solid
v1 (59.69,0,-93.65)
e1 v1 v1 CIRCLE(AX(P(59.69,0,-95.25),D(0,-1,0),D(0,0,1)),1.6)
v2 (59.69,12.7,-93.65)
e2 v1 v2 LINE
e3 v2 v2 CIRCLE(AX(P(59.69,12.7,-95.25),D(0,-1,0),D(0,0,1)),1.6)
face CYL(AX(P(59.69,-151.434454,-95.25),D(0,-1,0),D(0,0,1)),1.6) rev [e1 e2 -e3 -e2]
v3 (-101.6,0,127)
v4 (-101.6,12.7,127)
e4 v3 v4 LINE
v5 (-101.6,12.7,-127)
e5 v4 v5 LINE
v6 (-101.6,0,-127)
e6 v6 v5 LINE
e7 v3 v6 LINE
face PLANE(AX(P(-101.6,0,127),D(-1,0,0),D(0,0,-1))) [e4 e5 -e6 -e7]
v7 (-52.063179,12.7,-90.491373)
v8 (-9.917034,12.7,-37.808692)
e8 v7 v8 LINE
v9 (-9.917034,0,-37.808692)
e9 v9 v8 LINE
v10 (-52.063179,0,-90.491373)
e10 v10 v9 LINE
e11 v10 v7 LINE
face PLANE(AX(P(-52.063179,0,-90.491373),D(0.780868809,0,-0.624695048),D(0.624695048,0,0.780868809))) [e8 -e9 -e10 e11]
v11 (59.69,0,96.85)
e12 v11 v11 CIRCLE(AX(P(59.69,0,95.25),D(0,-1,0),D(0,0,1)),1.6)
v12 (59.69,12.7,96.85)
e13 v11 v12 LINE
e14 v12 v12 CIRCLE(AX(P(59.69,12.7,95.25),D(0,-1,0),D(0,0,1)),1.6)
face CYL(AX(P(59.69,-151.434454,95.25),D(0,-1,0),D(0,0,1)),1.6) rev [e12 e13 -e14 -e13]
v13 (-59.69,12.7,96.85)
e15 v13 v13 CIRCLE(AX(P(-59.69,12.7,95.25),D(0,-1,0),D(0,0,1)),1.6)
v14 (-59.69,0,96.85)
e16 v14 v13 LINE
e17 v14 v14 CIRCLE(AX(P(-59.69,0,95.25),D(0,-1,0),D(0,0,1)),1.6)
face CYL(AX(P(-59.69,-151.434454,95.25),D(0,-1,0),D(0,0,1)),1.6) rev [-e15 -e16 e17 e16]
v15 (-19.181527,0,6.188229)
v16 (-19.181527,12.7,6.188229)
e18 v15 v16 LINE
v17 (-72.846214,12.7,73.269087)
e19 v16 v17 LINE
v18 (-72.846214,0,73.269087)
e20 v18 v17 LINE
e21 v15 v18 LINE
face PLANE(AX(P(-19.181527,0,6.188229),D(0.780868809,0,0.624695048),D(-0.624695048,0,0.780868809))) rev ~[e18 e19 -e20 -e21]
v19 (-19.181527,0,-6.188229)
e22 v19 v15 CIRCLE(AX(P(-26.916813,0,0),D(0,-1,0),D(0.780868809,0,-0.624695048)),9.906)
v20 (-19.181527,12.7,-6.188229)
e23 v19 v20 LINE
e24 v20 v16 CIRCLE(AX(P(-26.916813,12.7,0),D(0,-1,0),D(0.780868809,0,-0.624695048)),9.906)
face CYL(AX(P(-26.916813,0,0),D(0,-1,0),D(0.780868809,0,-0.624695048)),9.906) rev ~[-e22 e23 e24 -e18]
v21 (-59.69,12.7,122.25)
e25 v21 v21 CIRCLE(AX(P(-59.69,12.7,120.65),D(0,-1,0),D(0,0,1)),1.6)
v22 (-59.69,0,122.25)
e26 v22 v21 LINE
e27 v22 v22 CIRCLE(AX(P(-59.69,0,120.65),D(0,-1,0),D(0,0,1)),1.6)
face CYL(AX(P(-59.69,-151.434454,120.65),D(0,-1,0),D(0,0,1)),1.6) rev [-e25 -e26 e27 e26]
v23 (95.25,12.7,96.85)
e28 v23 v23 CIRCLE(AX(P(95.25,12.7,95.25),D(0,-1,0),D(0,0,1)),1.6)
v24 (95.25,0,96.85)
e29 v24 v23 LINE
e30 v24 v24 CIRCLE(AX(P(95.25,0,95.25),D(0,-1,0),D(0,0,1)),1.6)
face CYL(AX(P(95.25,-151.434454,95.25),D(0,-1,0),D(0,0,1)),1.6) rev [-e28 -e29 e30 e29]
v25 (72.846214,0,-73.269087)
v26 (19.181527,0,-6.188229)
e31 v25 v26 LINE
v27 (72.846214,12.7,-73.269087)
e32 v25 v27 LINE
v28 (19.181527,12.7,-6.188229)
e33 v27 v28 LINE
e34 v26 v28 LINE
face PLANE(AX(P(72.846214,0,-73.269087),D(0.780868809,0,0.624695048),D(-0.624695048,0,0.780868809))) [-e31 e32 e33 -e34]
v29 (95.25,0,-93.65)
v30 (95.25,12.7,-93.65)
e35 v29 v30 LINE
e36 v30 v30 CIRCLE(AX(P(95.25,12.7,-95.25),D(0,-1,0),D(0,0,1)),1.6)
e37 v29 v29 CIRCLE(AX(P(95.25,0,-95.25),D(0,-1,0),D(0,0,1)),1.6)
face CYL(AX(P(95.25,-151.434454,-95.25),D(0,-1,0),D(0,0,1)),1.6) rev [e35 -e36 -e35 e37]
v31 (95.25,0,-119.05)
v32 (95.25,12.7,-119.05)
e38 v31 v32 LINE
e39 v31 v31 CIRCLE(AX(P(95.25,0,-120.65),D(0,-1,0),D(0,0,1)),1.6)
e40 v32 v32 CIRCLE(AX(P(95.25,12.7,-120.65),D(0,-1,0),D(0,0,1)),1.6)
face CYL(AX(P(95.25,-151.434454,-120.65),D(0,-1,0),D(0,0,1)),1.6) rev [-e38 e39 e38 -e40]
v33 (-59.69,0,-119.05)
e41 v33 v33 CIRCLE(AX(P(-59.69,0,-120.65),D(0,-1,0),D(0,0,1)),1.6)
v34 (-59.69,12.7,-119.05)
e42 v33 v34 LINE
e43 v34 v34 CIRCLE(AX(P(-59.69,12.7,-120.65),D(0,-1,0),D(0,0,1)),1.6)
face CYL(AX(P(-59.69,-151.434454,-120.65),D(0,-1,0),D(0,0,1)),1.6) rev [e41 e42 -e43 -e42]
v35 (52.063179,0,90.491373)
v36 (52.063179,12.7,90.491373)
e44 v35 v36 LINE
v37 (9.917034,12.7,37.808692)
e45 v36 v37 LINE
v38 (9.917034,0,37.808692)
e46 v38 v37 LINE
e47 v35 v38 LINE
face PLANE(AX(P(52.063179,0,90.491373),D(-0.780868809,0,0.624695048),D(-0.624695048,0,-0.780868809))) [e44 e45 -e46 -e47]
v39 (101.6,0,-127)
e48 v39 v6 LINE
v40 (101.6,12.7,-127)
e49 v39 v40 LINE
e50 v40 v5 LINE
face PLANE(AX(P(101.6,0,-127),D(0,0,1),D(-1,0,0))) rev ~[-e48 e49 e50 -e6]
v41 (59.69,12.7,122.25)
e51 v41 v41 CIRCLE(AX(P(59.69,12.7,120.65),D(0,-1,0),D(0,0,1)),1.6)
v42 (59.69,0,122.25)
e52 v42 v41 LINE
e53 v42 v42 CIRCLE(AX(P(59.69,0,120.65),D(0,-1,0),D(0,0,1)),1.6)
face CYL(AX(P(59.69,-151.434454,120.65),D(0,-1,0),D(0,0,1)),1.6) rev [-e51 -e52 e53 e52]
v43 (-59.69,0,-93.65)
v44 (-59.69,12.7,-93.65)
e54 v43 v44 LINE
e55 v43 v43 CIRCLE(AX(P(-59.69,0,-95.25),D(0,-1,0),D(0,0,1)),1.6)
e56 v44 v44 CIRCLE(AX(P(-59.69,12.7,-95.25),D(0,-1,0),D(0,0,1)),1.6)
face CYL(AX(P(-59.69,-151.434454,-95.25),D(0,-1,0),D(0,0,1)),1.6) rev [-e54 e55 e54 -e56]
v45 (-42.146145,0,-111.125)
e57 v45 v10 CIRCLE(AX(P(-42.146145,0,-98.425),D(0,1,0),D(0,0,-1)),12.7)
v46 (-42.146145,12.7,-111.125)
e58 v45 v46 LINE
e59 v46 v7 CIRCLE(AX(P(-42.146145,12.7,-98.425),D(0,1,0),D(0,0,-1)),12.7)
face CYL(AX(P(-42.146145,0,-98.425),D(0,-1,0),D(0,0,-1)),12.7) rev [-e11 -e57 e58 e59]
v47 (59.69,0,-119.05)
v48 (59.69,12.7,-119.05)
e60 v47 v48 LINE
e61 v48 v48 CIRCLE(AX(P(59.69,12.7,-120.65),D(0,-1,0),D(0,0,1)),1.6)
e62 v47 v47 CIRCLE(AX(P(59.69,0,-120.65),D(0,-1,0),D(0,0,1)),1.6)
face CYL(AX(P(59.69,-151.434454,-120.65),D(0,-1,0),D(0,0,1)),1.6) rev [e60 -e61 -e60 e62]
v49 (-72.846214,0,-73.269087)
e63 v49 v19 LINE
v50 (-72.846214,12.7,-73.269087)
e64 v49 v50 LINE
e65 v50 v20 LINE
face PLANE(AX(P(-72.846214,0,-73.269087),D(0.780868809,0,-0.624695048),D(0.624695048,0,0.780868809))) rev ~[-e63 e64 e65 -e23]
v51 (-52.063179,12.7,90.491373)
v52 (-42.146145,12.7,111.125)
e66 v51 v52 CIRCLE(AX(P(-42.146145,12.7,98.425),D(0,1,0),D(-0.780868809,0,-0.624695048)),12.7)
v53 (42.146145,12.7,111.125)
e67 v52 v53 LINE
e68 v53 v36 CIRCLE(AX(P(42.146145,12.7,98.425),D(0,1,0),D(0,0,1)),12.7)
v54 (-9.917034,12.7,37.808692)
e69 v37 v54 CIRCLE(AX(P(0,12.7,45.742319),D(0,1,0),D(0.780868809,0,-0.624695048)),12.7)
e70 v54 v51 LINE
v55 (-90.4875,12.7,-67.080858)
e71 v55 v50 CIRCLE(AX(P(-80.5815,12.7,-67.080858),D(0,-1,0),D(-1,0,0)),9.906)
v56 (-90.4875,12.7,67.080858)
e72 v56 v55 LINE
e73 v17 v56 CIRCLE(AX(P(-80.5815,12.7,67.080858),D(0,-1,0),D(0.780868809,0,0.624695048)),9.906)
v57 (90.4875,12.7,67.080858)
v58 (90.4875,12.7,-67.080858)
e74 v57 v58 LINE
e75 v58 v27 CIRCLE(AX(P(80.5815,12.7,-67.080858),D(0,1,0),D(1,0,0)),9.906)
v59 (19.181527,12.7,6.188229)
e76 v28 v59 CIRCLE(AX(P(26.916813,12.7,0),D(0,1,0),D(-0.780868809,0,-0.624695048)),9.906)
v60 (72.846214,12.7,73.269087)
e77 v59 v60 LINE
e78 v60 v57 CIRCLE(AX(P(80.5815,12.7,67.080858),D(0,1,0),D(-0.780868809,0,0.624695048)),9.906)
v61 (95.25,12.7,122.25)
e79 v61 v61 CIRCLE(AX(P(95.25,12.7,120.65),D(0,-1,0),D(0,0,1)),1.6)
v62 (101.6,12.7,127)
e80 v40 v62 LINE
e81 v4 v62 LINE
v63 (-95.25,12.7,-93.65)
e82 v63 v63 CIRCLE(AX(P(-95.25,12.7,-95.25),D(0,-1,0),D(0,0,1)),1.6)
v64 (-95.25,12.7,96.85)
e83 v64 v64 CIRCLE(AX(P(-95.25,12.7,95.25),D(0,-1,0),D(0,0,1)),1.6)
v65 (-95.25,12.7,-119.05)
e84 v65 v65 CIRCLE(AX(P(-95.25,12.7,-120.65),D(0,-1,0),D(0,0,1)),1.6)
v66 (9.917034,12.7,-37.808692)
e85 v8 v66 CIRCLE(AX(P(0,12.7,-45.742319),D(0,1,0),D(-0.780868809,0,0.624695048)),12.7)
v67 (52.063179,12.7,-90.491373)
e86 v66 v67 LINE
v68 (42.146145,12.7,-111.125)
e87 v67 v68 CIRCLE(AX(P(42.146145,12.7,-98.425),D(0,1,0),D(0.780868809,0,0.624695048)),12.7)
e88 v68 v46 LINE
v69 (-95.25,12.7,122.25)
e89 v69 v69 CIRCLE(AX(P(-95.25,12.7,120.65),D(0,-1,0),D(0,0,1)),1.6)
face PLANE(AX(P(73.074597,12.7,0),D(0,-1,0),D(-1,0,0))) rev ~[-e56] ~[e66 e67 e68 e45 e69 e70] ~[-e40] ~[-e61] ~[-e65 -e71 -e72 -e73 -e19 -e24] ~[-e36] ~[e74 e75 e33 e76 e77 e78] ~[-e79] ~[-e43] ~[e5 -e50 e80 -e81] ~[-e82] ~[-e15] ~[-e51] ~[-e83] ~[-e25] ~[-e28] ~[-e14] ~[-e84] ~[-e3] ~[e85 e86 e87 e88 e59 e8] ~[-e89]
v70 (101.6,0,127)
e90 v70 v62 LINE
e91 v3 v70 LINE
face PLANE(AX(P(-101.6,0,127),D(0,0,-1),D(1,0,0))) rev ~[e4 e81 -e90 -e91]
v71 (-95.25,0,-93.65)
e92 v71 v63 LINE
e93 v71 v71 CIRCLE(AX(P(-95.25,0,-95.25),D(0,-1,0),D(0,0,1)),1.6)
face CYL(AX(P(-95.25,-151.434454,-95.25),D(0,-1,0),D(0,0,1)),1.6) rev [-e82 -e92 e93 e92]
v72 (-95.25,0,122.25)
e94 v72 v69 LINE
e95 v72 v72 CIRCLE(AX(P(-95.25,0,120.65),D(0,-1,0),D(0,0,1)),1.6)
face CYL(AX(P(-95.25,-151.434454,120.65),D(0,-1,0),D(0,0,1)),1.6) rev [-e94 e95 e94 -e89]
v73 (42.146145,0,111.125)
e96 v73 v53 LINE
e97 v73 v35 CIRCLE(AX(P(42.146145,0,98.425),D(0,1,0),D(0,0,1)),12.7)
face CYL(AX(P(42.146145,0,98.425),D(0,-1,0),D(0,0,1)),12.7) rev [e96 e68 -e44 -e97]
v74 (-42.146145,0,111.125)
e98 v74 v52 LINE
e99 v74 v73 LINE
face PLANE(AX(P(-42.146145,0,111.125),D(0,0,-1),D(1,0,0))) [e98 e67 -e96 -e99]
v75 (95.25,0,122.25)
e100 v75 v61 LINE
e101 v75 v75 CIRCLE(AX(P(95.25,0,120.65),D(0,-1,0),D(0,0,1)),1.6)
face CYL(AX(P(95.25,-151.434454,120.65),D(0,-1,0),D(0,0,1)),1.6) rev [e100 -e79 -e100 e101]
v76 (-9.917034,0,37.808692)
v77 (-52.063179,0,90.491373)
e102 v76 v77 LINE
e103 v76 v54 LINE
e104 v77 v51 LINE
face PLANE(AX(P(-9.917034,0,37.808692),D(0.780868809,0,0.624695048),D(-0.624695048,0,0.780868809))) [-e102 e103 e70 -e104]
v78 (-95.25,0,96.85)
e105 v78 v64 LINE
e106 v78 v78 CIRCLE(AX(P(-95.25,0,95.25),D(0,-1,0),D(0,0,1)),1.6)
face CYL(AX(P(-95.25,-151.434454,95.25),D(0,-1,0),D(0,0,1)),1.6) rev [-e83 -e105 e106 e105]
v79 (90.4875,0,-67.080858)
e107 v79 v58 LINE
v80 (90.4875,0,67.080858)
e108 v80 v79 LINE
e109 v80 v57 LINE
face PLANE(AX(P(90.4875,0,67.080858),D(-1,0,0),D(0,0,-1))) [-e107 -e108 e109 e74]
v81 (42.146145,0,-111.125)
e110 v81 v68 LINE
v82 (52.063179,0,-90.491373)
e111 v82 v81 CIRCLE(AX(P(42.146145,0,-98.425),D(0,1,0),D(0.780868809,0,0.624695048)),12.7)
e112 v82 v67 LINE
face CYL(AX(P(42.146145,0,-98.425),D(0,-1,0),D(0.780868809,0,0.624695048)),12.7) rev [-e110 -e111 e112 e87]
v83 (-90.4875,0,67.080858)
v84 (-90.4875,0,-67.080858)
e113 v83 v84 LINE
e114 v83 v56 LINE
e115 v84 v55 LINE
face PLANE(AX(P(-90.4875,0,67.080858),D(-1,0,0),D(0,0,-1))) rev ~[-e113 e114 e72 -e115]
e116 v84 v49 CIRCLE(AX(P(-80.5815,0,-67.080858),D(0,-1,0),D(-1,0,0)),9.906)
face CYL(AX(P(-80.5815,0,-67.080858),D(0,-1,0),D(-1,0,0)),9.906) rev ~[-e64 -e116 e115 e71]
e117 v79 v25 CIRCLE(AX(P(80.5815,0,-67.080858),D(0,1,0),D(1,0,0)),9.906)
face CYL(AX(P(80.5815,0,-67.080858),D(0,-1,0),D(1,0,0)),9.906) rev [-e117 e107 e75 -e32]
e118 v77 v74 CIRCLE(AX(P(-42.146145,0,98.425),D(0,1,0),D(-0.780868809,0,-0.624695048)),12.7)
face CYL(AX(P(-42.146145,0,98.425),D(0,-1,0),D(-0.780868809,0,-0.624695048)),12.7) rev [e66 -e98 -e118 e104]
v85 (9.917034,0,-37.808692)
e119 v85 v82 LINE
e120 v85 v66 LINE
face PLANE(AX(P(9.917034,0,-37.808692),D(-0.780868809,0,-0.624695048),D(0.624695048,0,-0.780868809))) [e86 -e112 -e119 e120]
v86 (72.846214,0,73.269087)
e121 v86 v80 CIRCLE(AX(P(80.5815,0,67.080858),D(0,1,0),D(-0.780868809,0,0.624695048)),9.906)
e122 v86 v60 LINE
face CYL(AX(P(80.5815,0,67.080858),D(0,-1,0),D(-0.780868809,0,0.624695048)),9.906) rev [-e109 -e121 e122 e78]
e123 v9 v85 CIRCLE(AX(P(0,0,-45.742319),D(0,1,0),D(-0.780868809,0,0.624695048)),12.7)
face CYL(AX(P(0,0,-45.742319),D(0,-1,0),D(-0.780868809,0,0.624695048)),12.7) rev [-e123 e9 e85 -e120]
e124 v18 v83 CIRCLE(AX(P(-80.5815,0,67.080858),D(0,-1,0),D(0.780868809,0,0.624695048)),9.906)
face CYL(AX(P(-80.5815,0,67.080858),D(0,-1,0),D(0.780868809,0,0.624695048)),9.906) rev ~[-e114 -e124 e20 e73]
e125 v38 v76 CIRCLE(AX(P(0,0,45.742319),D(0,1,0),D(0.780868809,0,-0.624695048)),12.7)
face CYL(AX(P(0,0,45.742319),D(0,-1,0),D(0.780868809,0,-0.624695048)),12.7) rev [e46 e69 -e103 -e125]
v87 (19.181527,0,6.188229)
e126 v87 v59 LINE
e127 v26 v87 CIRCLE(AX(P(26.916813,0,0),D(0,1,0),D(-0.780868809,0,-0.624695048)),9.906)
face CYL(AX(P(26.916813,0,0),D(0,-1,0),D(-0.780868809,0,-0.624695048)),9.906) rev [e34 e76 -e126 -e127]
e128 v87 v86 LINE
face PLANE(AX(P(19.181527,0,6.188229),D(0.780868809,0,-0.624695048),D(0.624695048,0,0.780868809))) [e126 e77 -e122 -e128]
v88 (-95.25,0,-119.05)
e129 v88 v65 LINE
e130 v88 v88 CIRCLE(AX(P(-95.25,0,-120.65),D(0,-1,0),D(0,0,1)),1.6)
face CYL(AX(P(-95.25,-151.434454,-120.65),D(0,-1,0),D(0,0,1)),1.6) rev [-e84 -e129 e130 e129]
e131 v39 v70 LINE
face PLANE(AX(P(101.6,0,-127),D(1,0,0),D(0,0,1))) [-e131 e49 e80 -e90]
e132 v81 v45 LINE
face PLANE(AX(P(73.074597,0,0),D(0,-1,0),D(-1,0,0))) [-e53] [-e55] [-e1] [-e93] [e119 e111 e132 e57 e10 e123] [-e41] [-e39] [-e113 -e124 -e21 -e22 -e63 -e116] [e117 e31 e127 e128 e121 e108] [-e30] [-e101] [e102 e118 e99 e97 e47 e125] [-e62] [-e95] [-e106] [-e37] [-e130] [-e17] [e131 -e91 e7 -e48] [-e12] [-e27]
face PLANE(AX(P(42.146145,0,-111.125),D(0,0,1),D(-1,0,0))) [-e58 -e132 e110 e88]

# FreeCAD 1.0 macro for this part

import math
import FreeCAD as App
import Part
import Sketcher
from FreeCAD import Vector
Q = App.Units.Quantity

doc = App.newDocument("Part")
body = doc.addObject("PartDesign::Body", "Body")

# Sketch on XZ plane
sketch1 = body.newObject("Sketcher::SketchObject", "Sketch")
sketch1.AttachmentSupport = (doc.getObject("XZ_Plane"), [""])
sketch1.MapMode = "FlatFace"
sketch1.addGeometry([
    Part.LineSegment(Vector(102, -127, 0), Vector(-102, -127, 0)),  # 0
    Part.LineSegment(Vector(-102, -127, 0), Vector(-102, 127, 0)),  # 1
    Part.LineSegment(Vector(-102, 127, 0), Vector(102, 127, 0)),  # 2
    Part.LineSegment(Vector(102, 127, 0), Vector(102, -127, 0)),  # 3
    Part.ArcOfCircle(Part.Circle(Vector(-42, -98, 0), Vector(0, 0, 1), 13), math.radians(141), math.radians(270)),  # 4
    Part.LineSegment(Vector(-42, -111, 0), Vector(42, -111, 0)),  # 5
    Part.ArcOfCircle(Part.Circle(Vector(42, -98, 0), Vector(0, 0, 1), 13), math.radians(-90), math.radians(39)),  # 6
    Part.LineSegment(Vector(52, -90, 0), Vector(10, -38, 0)),  # 7
    Part.ArcOfCircle(Part.Circle(Vector(0, -46, 0), Vector(0, 0, 1), 13), math.radians(39), math.radians(141)),  # 8
    Part.LineSegment(Vector(-10, -38, 0), Vector(-52, -90, 0)),  # 9
    Part.ArcOfCircle(Part.Circle(Vector(-81, 67, 0), Vector(0, 0, 1), 10), math.radians(39), math.radians(180)),  # 10
    Part.LineSegment(Vector(-90, 67, 0), Vector(-90, -67, 0)),  # 11
    Part.ArcOfCircle(Part.Circle(Vector(-81, -67, 0), Vector(0, 0, 1), 10), math.radians(-180), math.radians(-39)),  # 12
    Part.LineSegment(Vector(-73, -73, 0), Vector(-19, -6, 0)),  # 13
    Part.ArcOfCircle(Part.Circle(Vector(-27, 0, 0), Vector(0, 0, 1), 10), math.radians(-39), math.radians(39)),  # 14
    Part.LineSegment(Vector(-19, 6, 0), Vector(-73, 73, 0)),  # 15
    Part.ArcOfCircle(Part.Circle(Vector(81, 67, 0), Vector(0, 0, 1), 10), math.radians(0), math.radians(141)),  # 16
    Part.LineSegment(Vector(73, 73, 0), Vector(19, 6, 0)),  # 17
    Part.ArcOfCircle(Part.Circle(Vector(27, 0, 0), Vector(0, 0, 1), 10), math.radians(141), math.radians(219)),  # 18
    Part.LineSegment(Vector(19, -6, 0), Vector(73, -73, 0)),  # 19
    Part.ArcOfCircle(Part.Circle(Vector(81, -67, 0), Vector(0, 0, 1), 10), math.radians(-141), math.radians(0)),  # 20
    Part.LineSegment(Vector(90, -67, 0), Vector(90, 67, 0)),  # 21
    Part.ArcOfCircle(Part.Circle(Vector(-42, 98, 0), Vector(0, 0, 1), 13), math.radians(90), math.radians(219)),  # 22
    Part.LineSegment(Vector(-52, 90, 0), Vector(-10, 38, 0)),  # 23
    Part.ArcOfCircle(Part.Circle(Vector(0, 46, 0), Vector(0, 0, 1), 13), math.radians(-141), math.radians(-39)),  # 24
    Part.LineSegment(Vector(10, 38, 0), Vector(52, 90, 0)),  # 25
    Part.ArcOfCircle(Part.Circle(Vector(42, 98, 0), Vector(0, 0, 1), 13), math.radians(-39), math.radians(90)),  # 26
    Part.LineSegment(Vector(42, 111, 0), Vector(-42, 111, 0)),  # 27
], False)
sketch1.addConstraint([
    Sketcher.Constraint("Coincident", 0, 2, 1, 1),
    Sketcher.Constraint("Coincident", 1, 2, 2, 1),
    Sketcher.Constraint("Coincident", 2, 2, 3, 1),
    Sketcher.Constraint("Coincident", 3, 2, 0, 1),
    Sketcher.Constraint("Tangent", 4, 2, 5, 1),
    Sketcher.Constraint("Tangent", 5, 2, 6, 1),
    Sketcher.Constraint("Tangent", 6, 2, 7, 1),
    Sketcher.Constraint("Tangent", 7, 2, 8, 1),
    Sketcher.Constraint("Tangent", 8, 2, 9, 1),
    Sketcher.Constraint("Tangent", 9, 2, 4, 1),
    Sketcher.Constraint("Tangent", 10, 2, 11, 1),
    Sketcher.Constraint("Tangent", 11, 2, 12, 1),
    Sketcher.Constraint("Tangent", 12, 2, 13, 1),
    Sketcher.Constraint("Tangent", 13, 2, 14, 1),
    Sketcher.Constraint("Tangent", 14, 2, 15, 1),
    Sketcher.Constraint("Tangent", 15, 2, 10, 1),
    Sketcher.Constraint("Tangent", 16, 2, 17, 1),
    Sketcher.Constraint("Tangent", 17, 2, 18, 1),
    Sketcher.Constraint("Tangent", 18, 2, 19, 1),
    Sketcher.Constraint("Tangent", 19, 2, 20, 1),
    Sketcher.Constraint("Tangent", 20, 2, 21, 1),
    Sketcher.Constraint("Tangent", 21, 2, 16, 1),
    Sketcher.Constraint("Tangent", 22, 2, 23, 1),
    Sketcher.Constraint("Tangent", 23, 2, 24, 1),
    Sketcher.Constraint("Tangent", 24, 2, 25, 1),
    Sketcher.Constraint("Tangent", 25, 2, 26, 1),
    Sketcher.Constraint("Tangent", 26, 2, 27, 1),
    Sketcher.Constraint("Tangent", 27, 2, 22, 1),
    Sketcher.Constraint("Horizontal", 0),
    Sketcher.Constraint("Vertical", 1),
    Sketcher.Constraint("Horizontal", 2),
    Sketcher.Constraint("Vertical", 3),
    Sketcher.Constraint("Horizontal", 5),
    Sketcher.Constraint("Vertical", 11),
    Sketcher.Constraint("Vertical", 21),
    Sketcher.Constraint("Horizontal", 27),
    Sketcher.Constraint("Equal", 4, 6),
    Sketcher.Constraint("Equal", 6, 8),
    Sketcher.Constraint("Equal", 10, 12),
    Sketcher.Constraint("Equal", 12, 14),
    Sketcher.Constraint("Equal", 14, 16),
    Sketcher.Constraint("Equal", 16, 18),
    Sketcher.Constraint("Equal", 18, 20),
    Sketcher.Constraint("Equal", 8, 22),
    Sketcher.Constraint("Equal", 22, 24),
    Sketcher.Constraint("Equal", 24, 26),
    Sketcher.Constraint("Symmetric", 12, 3, 16, 3, -1, 1),
    Sketcher.Constraint("Symmetric", 14, 3, 18, 3, -1, 1),
    Sketcher.Constraint("Symmetric", 6, 3, 22, 3, -1, 1),
    Sketcher.Constraint("Symmetric", 8, 3, 24, 3, -1, 1),
    Sketcher.Constraint("Symmetric", 0, 2, 2, 2, -1, 1),
    Sketcher.Constraint("Symmetric", 7, 2, 8, 2, -2),
    Sketcher.Constraint("Symmetric", 15, 2, 16, 2, -2),
    Sketcher.Constraint("Parallel", 9, 13),
    Sketcher.Constraint("Parallel", 15, 19),
    Sketcher.Constraint("Parallel", 17, 25),
    Sketcher.Constraint("Radius", 4, Q("0.5 in")),
    Sketcher.Constraint("DistanceX", 0, 2, 0, 1, Q("8 in")),
    Sketcher.Constraint("DistanceY", 1, 1, 1, 2, Q("10 in")),
    Sketcher.Constraint("Radius", 10, Q("0.39 in")),
    Sketcher.Constraint("DistanceY", 4, 3, -1, 1, Q("3.875 in")),
    Sketcher.Constraint("DistanceX", 10, 2, -1, 1, Q("3.5625 in")),
    Sketcher.Constraint("DistanceY", 12, 3, 8, 3, Q("0.8401 in")),
    Sketcher.Constraint("DistanceY", 8, 2, 13, 2, Q("1.2449001 in")),
    Sketcher.Constraint("DistanceX", 5, 1, 5, 2, Q("84.29229 mm")),
])
pad1 = body.newObject("PartDesign::Pad", "Pad")
pad1.Profile = sketch1
pad1.Length = Q("0.5 in")
pad1.Reversed = True

# Sketch on XZ plane
sketch2 = body.newObject("Sketcher::SketchObject", "Sketch001")
sketch2.AttachmentSupport = (doc.getObject("XZ_Plane"), [""])
sketch2.MapMode = "FlatFace"
sketch2.AttachmentOffset = App.Placement(Vector(0, 0, -0.5 * 25.4), App.Rotation())
sketch2.addGeometry([
    Part.Circle(Vector(-95.2, -120.7, 0), Vector(0, 0, 1), 1.6),  # 0
    Part.Circle(Vector(-59.7, -120.7, 0), Vector(0, 0, 1), 1.6),  # 1
    Part.Circle(Vector(-95.2, -95.2, 0), Vector(0, 0, 1), 1.6),  # 2
    Part.Circle(Vector(-59.7, -95.2, 0), Vector(0, 0, 1), 1.6),  # 3
    Part.Circle(Vector(-95.2, 95.2, 0), Vector(0, 0, 1), 1.6),  # 4
    Part.Circle(Vector(-59.7, 95.2, 0), Vector(0, 0, 1), 1.6),  # 5
    Part.Circle(Vector(-95.2, 120.7, 0), Vector(0, 0, 1), 1.6),  # 6
    Part.Circle(Vector(-59.7, 120.7, 0), Vector(0, 0, 1), 1.6),  # 7
    Part.Circle(Vector(59.7, 95.2, 0), Vector(0, 0, 1), 1.6),  # 8
    Part.Circle(Vector(95.2, 95.2, 0), Vector(0, 0, 1), 1.6),  # 9
    Part.Circle(Vector(59.7, 120.7, 0), Vector(0, 0, 1), 1.6),  # 10
    Part.Circle(Vector(95.2, 120.7, 0), Vector(0, 0, 1), 1.6),  # 11
    Part.Circle(Vector(59.7, -120.7, 0), Vector(0, 0, 1), 1.6),  # 12
    Part.Circle(Vector(59.7, -95.2, 0), Vector(0, 0, 1), 1.6),  # 13
    Part.Circle(Vector(95.2, -95.2, 0), Vector(0, 0, 1), 1.6),  # 14
    Part.Circle(Vector(95.2, -120.7, 0), Vector(0, 0, 1), 1.6),  # 15
], False)
sketch2.addConstraint([
    Sketcher.Constraint("Equal", 0, 1),
    Sketcher.Constraint("Equal", 1, 2),
    Sketcher.Constraint("Equal", 2, 3),
    Sketcher.Constraint("Equal", 3, 4),
    Sketcher.Constraint("Equal", 4, 5),
    Sketcher.Constraint("Equal", 5, 6),
    Sketcher.Constraint("Equal", 6, 7),
    Sketcher.Constraint("Equal", 7, 8),
    Sketcher.Constraint("Equal", 8, 9),
    Sketcher.Constraint("Equal", 9, 10),
    Sketcher.Constraint("Equal", 10, 11),
    Sketcher.Constraint("Equal", 11, 12),
    Sketcher.Constraint("Equal", 12, 13),
    Sketcher.Constraint("Equal", 13, 14),
    Sketcher.Constraint("Equal", 14, 15),
    Sketcher.Constraint("Symmetric", 3, 3, 8, 3, -1, 1),
    Sketcher.Constraint("Symmetric", 2, 3, 9, 3, -1, 1),
    Sketcher.Constraint("Symmetric", 1, 3, 10, 3, -1, 1),
    Sketcher.Constraint("Symmetric", 0, 3, 11, 3, -1, 1),
    Sketcher.Constraint("Symmetric", 7, 3, 12, 3, -1, 1),
    Sketcher.Constraint("Symmetric", 5, 3, 13, 3, -1, 1),
    Sketcher.Constraint("Symmetric", 4, 3, 14, 3, -1, 1),
    Sketcher.Constraint("Symmetric", 6, 3, 15, 3, -1, 1),
    Sketcher.Constraint("Symmetric", 5, 3, 8, 3, -2),
    Sketcher.Constraint("Symmetric", 4, 3, 9, 3, -2),
    Sketcher.Constraint("Symmetric", 7, 3, 10, 3, -2),
    Sketcher.Constraint("Symmetric", 6, 3, 11, 3, -2),
    Sketcher.Constraint("Horizontal", 0, 3, 1, 3),
    Sketcher.Constraint("Horizontal", 2, 3, 3, 3),
    Sketcher.Constraint("Vertical", 0, 3, 2, 3),
    Sketcher.Constraint("Vertical", 1, 3, 3, 3),
    Sketcher.Constraint("DistanceY", 0, 3, 2, 3, Q("1 in")),
    Sketcher.Constraint("DistanceX", 0, 3, 1, 3, Q("1.4 in")),
    Sketcher.Constraint("DistanceY", 2, 3, 4, 3, Q("7.5 in")),
    Sketcher.Constraint("DistanceX", 5, 3, 8, 3, Q("4.7 in")),
    Sketcher.Constraint("Diameter", 0, Q("3.2 mm")),
])
pocket1 = body.newObject("PartDesign::Pocket", "Pocket")
pocket1.Profile = sketch2
pocket1.Type = "ThroughAll"
pocket1.Midplane = True

doc.recompute()
